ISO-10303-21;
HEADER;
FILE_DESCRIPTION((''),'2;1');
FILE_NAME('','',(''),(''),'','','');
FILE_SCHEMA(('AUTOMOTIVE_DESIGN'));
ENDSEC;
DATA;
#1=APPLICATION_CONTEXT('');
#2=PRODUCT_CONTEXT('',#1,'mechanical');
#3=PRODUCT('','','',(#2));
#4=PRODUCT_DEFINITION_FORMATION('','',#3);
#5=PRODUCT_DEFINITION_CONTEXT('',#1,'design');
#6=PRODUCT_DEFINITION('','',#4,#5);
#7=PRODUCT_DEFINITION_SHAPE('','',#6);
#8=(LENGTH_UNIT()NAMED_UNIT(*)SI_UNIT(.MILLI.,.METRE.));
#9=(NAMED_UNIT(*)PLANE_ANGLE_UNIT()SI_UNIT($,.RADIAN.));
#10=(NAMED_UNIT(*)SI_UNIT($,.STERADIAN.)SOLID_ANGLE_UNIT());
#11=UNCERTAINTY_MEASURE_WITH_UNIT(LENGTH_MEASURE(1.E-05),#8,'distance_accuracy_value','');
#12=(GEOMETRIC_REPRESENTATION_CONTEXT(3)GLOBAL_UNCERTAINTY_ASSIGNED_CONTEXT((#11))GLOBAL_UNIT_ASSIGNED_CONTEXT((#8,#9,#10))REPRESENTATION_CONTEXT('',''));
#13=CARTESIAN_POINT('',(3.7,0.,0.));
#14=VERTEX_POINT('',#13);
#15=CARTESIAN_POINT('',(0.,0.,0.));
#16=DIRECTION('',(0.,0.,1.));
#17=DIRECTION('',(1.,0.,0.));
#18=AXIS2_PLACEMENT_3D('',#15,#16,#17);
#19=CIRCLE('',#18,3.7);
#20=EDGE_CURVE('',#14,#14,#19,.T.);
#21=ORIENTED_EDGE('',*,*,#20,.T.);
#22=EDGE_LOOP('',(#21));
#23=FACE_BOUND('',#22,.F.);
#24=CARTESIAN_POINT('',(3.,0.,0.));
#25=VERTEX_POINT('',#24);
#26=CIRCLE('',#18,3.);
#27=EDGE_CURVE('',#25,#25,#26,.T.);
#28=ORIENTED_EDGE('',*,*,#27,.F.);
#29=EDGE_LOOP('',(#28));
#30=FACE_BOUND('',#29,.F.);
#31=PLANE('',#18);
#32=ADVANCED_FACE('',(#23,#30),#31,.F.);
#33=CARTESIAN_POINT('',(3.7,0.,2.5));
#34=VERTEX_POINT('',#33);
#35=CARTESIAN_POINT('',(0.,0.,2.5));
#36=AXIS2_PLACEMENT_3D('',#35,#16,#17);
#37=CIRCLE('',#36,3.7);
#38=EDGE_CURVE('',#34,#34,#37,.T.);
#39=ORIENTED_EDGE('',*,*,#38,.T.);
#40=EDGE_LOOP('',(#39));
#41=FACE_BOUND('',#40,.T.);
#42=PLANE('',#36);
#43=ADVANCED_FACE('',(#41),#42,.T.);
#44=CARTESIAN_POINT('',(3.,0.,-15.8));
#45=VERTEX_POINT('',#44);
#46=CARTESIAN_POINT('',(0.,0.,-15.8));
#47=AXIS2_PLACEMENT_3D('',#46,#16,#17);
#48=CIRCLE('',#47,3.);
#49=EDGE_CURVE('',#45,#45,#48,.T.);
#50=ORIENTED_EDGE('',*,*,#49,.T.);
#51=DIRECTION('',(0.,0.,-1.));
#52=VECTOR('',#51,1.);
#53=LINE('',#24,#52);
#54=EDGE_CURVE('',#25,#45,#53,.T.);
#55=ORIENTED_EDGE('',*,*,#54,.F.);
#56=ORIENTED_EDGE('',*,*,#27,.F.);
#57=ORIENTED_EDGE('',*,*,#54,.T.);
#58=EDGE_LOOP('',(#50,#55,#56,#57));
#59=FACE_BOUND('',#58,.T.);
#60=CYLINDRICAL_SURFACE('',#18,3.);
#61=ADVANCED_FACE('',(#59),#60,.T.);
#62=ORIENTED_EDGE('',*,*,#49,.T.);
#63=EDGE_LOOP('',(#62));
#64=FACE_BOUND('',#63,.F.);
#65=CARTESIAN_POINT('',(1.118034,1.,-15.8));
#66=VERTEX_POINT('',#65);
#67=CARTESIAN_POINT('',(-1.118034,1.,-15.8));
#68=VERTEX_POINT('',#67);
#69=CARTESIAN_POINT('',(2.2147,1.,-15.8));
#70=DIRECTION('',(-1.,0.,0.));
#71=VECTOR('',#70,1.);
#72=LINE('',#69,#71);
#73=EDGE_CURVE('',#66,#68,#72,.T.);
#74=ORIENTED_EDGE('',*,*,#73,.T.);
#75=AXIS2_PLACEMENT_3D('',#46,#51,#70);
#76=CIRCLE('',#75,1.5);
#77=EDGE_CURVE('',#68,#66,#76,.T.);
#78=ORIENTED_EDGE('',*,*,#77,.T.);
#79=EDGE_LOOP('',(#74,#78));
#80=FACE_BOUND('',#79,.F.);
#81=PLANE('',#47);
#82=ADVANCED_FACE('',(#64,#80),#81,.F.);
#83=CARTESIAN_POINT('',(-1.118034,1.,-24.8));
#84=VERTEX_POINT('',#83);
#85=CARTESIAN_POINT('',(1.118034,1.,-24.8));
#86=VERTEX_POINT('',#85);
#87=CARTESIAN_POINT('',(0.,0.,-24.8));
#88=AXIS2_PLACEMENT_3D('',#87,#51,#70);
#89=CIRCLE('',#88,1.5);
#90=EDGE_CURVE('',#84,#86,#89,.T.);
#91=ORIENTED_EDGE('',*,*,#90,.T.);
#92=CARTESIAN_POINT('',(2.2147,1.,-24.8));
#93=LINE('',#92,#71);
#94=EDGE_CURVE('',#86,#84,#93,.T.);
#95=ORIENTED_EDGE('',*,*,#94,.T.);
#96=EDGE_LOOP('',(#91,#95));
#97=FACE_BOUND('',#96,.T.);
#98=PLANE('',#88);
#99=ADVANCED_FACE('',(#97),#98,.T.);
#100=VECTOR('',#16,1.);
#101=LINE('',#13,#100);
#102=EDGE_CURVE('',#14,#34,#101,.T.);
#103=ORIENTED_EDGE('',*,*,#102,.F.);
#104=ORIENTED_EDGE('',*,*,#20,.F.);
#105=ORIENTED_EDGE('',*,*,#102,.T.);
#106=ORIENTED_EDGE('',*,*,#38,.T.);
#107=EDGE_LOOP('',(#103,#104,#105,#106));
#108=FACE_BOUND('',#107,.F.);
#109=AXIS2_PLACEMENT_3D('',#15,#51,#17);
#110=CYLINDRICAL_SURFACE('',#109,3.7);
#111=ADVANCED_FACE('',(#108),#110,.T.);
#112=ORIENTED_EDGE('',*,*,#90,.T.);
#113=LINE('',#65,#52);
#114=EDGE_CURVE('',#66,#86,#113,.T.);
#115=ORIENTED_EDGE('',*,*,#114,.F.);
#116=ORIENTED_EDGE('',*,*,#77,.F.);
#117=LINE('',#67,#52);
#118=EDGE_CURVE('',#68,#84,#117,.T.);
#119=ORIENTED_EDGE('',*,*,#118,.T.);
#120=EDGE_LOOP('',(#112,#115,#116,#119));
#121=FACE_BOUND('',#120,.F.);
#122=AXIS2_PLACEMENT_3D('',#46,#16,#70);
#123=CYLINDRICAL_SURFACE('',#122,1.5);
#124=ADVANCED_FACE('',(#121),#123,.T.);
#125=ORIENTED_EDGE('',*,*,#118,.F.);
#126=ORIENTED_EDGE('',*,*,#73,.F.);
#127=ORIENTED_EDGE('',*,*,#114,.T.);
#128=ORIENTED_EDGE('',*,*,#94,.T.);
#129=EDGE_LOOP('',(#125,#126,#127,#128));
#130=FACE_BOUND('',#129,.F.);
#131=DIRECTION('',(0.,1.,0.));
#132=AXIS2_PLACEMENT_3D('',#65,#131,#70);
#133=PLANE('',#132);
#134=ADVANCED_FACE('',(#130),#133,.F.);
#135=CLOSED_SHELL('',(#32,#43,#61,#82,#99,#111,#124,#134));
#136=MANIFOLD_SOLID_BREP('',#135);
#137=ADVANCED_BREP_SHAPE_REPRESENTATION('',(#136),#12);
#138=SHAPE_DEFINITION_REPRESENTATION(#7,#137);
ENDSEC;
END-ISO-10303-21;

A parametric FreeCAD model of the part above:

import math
import FreeCAD as App
import Part
import Sketcher
Q = App.Units.Quantity

doc = App.newDocument("Part")
body = doc.addObject("PartDesign::Body", "Body")

sketch1 = body.newObject("Sketcher::SketchObject", "Sketch")
sketch1.AttachmentSupport = (doc.getObject("XY_Plane"), [""])
sketch1.MapMode = "FlatFace"
sketch1.addGeometry(Part.Circle(App.Vector(0, 0, 0), App.Vector(0, 0, 1), 3.7), False)
sketch1.addConstraint([
    Sketcher.Constraint("Coincident", 0, 3, -1, 1),
    Sketcher.Constraint("Diameter", 0, Q("7.4 mm")),
])
pad1 = body.newObject("PartDesign::Pad", "Pad")
pad1.Profile = sketch1
pad1.Length = 2.5

sketch2 = body.newObject("Sketcher::SketchObject", "Sketch001")
sketch2.AttachmentSupport = (doc.getObject("XY_Plane"), [""])
sketch2.MapMode = "FlatFace"
sketch2.addGeometry(Part.Circle(App.Vector(0, 0, 0), App.Vector(0, 0, 1), 3), False)
sketch2.addConstraint([
    Sketcher.Constraint("Coincident", 0, 3, -1, 1),
    Sketcher.Constraint("Diameter", 0, Q("6 mm")),
])
pad2 = body.newObject("PartDesign::Pad", "Pad001")
pad2.Profile = sketch2
pad2.Length = 15.8
pad2.Reversed = True

sketch3 = body.newObject("Sketcher::SketchObject", "Sketch002")
sketch3.AttachmentSupport = (doc.getObject("XY_Plane"), [""])
sketch3.MapMode = "FlatFace"
sketch3.AttachmentOffset = App.Placement(App.Vector(0, 0, -15.8), App.Rotation())
sketch3.addGeometry([
    Part.LineSegment(App.Vector(1.1, 1, 0), App.Vector(-1.1, 1, 0)),
    Part.ArcOfCircle(Part.Circle(App.Vector(0, 0, 0), App.Vector(0, 0, 1), 1.5), math.radians(42), math.radians(138)),
], False)
sketch3.addConstraint([
    Sketcher.Constraint("Coincident", 0, 1, 1, 1),
    Sketcher.Constraint("Coincident", 1, 2, 0, 2),
    Sketcher.Constraint("Horizontal", 0),
    Sketcher.Constraint("Coincident", 1, 3, -1, 1),
    Sketcher.Constraint("Radius", 1, Q("1.5 mm")),
    Sketcher.Constraint("DistanceY", -1, 1, 0, 1, Q("1 mm")),
])
pad3 = body.newObject("PartDesign::Pad", "Pad002")
pad3.Profile = sketch3
pad3.Length = 9
pad3.Reversed = True

doc.recompute()
